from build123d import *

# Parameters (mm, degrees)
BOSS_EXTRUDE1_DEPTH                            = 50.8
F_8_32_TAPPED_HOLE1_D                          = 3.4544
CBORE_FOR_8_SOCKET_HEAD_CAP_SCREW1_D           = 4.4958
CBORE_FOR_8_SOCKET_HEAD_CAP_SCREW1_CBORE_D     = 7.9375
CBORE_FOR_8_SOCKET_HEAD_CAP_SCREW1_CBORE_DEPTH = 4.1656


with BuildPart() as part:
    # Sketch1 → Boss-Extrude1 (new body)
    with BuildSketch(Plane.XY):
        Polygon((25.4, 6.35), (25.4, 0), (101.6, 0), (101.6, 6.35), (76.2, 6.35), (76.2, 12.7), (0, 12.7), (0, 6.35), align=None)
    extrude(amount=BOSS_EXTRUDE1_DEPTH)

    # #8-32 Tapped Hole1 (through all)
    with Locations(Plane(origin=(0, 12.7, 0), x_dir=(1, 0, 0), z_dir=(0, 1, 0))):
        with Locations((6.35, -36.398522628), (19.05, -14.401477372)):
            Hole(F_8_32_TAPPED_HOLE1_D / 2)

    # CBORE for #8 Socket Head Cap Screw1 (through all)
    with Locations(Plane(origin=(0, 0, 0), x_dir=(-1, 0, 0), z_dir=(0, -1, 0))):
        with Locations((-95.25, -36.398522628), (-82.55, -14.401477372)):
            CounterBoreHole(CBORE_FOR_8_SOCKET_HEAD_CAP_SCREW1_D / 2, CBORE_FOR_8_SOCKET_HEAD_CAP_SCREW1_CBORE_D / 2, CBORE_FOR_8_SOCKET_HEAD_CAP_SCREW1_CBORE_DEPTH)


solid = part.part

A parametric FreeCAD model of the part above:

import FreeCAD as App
import Part
import Sketcher
Q = App.Units.Quantity


def add_polygon(sketch, points):
    """Adds a closed chain of lines whose ends are joined by coincident constraints."""
    first, n = sketch.GeometryCount, len(points)
    for a, b in zip(points, points[1:] + points[:1]):
        sketch.addGeometry(Part.LineSegment(App.Vector(*a, 0), App.Vector(*b, 0)), False)
    for i in range(n):
        sketch.addConstraint(Sketcher.Constraint("Coincident", first + i, 2, first + (i + 1) % n, 1))

doc = App.newDocument("Part")
body = doc.addObject("PartDesign::Body", "Body")

sketch1 = body.newObject("Sketcher::SketchObject", "Sketch")
sketch1.AttachmentSupport = (doc.getObject("XY_Plane"), [""])
sketch1.MapMode = "FlatFace"
add_polygon(sketch1, [(25.4, 6.35), (25.4, 0), (101.6, 0), (101.6, 6.35), (76.2, 6.35), (76.2, 12.7), (0, 12.7), (0, 6.35)])
sketch1.addConstraint([
    Sketcher.Constraint("Vertical", 0),
    Sketcher.Constraint("Horizontal", 1),
    Sketcher.Constraint("Vertical", 2),
    Sketcher.Constraint("Horizontal", 3),
    Sketcher.Constraint("Vertical", 4),
    Sketcher.Constraint("Horizontal", 5),
    Sketcher.Constraint("Vertical", 6),
    Sketcher.Constraint("Horizontal", 7),
    Sketcher.Constraint("PointOnObject", 0, 2, -1),
    Sketcher.Constraint("PointOnObject", 5, 2, -2),
    Sketcher.Constraint("Horizontal", 3, 2, 6, 2),
    Sketcher.Constraint("Equal", 1, 5),
    Sketcher.Constraint("Equal", 2, 4),
    Sketcher.Constraint("DistanceX", 1, 1, 1, 2, Q("3 in")),
    Sketcher.Constraint("DistanceX", 3, 2, 3, 1, Q("1 in")),
    Sketcher.Constraint("DistanceY", 0, 2, 0, 1, Q("0.25 in")),
])
pad1 = body.newObject("PartDesign::Pad", "Pad")
pad1.Profile = sketch1
pad1.Length = Q("2 in")

sketch2 = body.newObject("Sketcher::SketchObject", "Sketch001")
sketch2.AttachmentSupport = (doc.getObject("XZ_Plane"), [""])
sketch2.MapMode = "FlatFace"
sketch2.AttachmentOffset = App.Placement(App.Vector(0, 0, -0.5 * 25.4), App.Rotation())
sketch2.addGeometry([
    Part.Circle(App.Vector(6.35, 36.398523, 0), App.Vector(0, 0, 1), 1.7272),
    Part.Circle(App.Vector(19.05, 14.401477, 0), App.Vector(0, 0, 1), 1.7272),
], False)
sketch2.addConstraint([
    Sketcher.Constraint("Equal", 0, 1),
    Sketcher.Constraint("Diameter", 0, Q("0.136 in")),
    Sketcher.Constraint("DistanceX", 0, 3, 1, 3, Q("0.5 in")),
    Sketcher.Constraint("DistanceX", -1, 1, 0, 3, Q("0.25 in")),
    Sketcher.Constraint("DistanceY", -1, 1, 0, 3, Q("36.398523 mm")),
    Sketcher.Constraint("DistanceY", -1, 1, 1, 3, Q("14.401477 mm")),
])
doc.recompute()
hole = body.newObject("PartDesign::Hole", "Hole")
hole.Profile = sketch2
hole.ThreadType = "None"
hole.Diameter = Q("0.136 in")
hole.DepthType = "ThroughAll"
hole.Reversed = True

sketch3 = body.newObject("Sketcher::SketchObject", "Sketch002")
sketch3.AttachmentSupport = (doc.getObject("XZ_Plane"), [""])
sketch3.MapMode = "FlatFace"
sketch3.addGeometry([
    Part.Circle(App.Vector(95.25, 36.398523, 0), App.Vector(0, 0, 1), 2.2479),
    Part.Circle(App.Vector(82.55, 14.401477, 0), App.Vector(0, 0, 1), 2.2479),
], False)
sketch3.addConstraint([
    Sketcher.Constraint("Equal", 0, 1),
    Sketcher.Constraint("Diameter", 0, Q("0.177 in")),
    Sketcher.Constraint("DistanceX", 1, 3, 0, 3, Q("0.5 in")),
    Sketcher.Constraint("DistanceX", -1, 1, 0, 3, Q("3.75 in")),
    Sketcher.Constraint("DistanceY", -1, 1, 0, 3, Q("36.398523 mm")),
    Sketcher.Constraint("DistanceY", -1, 1, 1, 3, Q("14.401477 mm")),
])
doc.recompute()
hole2 = body.newObject("PartDesign::Hole", "Hole001")
hole2.Profile = sketch3
hole2.ThreadType = "None"
hole2.Diameter = Q("0.177 in")
hole2.DepthType = "ThroughAll"
hole2.HoleCutType = "Counterbore"
hole2.HoleCutDiameter = Q("0.3125 in")
hole2.HoleCutDepth = Q("0.164 in")

doc.recompute()
